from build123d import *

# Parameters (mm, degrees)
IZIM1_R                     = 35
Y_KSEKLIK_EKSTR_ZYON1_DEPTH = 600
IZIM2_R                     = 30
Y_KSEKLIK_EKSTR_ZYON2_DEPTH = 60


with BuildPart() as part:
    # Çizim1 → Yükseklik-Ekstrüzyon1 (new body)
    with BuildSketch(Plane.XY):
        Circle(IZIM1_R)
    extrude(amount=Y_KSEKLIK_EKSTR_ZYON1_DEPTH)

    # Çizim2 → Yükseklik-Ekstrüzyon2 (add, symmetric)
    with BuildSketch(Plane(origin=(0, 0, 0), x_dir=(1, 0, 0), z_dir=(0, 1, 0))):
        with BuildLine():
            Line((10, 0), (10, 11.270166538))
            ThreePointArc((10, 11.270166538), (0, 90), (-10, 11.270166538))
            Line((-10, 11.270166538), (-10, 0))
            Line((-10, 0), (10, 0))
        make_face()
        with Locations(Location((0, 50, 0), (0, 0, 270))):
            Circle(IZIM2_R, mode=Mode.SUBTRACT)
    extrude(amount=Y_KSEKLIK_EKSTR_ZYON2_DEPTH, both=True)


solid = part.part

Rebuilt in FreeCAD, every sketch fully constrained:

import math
import FreeCAD as App
import Part
import Sketcher

V = App.Vector

doc = App.newDocument("Part")
body = doc.addObject("PartDesign::Body", "Body")

sketch1 = body.newObject("Sketcher::SketchObject", "Sketch")
sketch1.AttachmentSupport = (doc.getObject("XY_Plane"), [""])
sketch1.MapMode = "FlatFace"
sketch1.addGeometry(Part.Circle(V(0, 0, 0), V(0, 0, 1), 35), False)
sketch1.addConstraint([
    Sketcher.Constraint("Coincident", 0, 3, -1, 1),
    Sketcher.Constraint("Diameter", 0, 70.0),
])
pad1 = body.newObject("PartDesign::Pad", "Pad")
pad1.Profile = sketch1
pad1.Length = 600

sketch2 = body.newObject("Sketcher::SketchObject", "Sketch001")
sketch2.AttachmentSupport = (doc.getObject("XZ_Plane"), [""])
sketch2.MapMode = "FlatFace"
sketch2.addGeometry([
    Part.LineSegment(V(10, 0, 0), V(10, -11, 0)),
    Part.ArcOfCircle(Part.Circle(V(0, -50, 0), V(0, 0, 1), 40), math.radians(104), math.radians(436)),
    Part.LineSegment(V(-10, -11, 0), V(-10, 0, 0)),
    Part.LineSegment(V(-10, 0, 0), V(10, 0, 0)),
    Part.Circle(V(0, -50, 0), V(0, 0, 1), 30),
], False)
sketch2.addConstraint([
    Sketcher.Constraint("Coincident", 0, 2, 1, 2),
    Sketcher.Constraint("Coincident", 1, 1, 2, 1),
    Sketcher.Constraint("Coincident", 2, 2, 3, 1),
    Sketcher.Constraint("Coincident", 3, 2, 0, 1),
    Sketcher.Constraint("Vertical", 0),
    Sketcher.Constraint("Vertical", 2),
    Sketcher.Constraint("Horizontal", 3),
    Sketcher.Constraint("Coincident", 4, 3, 1, 3),
    Sketcher.Constraint("Symmetric", 2, 2, 3, 2, -1, 1),
    Sketcher.Constraint("PointOnObject", 1, 3, -2),
    Sketcher.Constraint("Diameter", 4, 60.0),
    Sketcher.Constraint("Radius", 1, 40.0),
    Sketcher.Constraint("DistanceX", 3, 1, 3, 2, 20.0),
    Sketcher.Constraint("DistanceY", 1, 3, -1, 1, 50.0),
])
pad2 = body.newObject("PartDesign::Pad", "Pad001")
pad2.Profile = sketch2
pad2.Length = 120
pad2.Midplane = True

doc.recompute()
